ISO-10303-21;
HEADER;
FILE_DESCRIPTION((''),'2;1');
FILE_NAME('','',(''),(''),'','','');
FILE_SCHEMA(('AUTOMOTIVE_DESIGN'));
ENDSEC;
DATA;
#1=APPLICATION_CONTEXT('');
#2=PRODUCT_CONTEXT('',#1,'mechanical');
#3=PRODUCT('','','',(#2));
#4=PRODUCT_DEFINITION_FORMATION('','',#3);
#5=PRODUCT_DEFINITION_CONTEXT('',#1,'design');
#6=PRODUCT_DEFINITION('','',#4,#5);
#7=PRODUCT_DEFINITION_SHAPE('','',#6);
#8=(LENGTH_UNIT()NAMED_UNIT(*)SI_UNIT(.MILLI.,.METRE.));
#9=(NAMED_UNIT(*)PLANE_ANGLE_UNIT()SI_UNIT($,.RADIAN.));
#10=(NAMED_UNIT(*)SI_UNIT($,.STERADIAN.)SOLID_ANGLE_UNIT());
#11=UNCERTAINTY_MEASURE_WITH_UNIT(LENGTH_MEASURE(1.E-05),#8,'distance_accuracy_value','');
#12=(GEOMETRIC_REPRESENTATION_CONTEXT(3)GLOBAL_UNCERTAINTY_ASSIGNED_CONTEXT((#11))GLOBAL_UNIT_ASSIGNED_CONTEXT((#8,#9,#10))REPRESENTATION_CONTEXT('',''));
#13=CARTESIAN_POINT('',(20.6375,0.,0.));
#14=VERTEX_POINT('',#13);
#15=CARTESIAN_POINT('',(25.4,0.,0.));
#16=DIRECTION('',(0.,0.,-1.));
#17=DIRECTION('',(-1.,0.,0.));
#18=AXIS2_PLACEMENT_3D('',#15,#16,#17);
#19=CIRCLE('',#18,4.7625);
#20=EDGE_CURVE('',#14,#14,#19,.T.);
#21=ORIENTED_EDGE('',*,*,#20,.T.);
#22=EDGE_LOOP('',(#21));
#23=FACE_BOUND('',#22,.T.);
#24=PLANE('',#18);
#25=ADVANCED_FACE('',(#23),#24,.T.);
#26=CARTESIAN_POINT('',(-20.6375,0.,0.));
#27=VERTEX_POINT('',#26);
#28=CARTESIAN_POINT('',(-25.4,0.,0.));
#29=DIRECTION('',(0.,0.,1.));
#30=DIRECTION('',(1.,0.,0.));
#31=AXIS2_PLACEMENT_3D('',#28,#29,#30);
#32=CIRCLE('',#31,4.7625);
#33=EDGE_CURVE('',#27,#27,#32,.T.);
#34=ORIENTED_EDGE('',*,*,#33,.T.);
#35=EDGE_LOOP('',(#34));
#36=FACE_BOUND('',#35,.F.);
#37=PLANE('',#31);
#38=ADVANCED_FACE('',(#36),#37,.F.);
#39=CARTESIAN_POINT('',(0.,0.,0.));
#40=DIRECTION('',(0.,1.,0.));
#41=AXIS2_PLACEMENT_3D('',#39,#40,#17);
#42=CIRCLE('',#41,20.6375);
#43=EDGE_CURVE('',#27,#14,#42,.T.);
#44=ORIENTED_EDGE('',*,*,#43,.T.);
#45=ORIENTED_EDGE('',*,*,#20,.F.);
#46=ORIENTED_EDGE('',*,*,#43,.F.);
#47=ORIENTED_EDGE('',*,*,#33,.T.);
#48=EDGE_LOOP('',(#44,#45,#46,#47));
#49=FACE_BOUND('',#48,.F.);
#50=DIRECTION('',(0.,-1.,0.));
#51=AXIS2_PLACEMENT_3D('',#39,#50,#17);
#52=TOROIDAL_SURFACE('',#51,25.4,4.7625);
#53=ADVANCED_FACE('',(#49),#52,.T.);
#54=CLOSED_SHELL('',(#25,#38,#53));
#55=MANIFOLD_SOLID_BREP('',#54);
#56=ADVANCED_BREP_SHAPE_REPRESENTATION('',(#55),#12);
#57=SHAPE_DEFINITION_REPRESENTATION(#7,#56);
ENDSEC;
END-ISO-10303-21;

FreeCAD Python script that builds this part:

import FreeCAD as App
import Part
import Sketcher
Q = App.Units.Quantity

doc = App.newDocument("Part")
body = doc.addObject("PartDesign::Body", "Body")

sketch1 = doc.addObject("Sketcher::SketchObject", "Sketch")
body.addObject(sketch1)
sketch1.AttachmentSupport = (doc.XY_Plane, [""])
sketch1.MapMode = "FlatFace"
sketch1.addGeometry(Part.Circle(App.Vector(-25.4, 0, 0), App.Vector(0, 0, 1), 4.8), False)
sketch1.addConstraint([
    Sketcher.Constraint("PointOnObject", 0, 3, -1),
    Sketcher.Constraint("Diameter", 0, Q("0.375 in")),
    Sketcher.Constraint("DistanceX", 0, 3, -1, 1, Q("1 in")),
])
revolution = doc.addObject("PartDesign::Revolution", "Revolution")
body.addObject(revolution)
revolution.Profile = sketch1
revolution.ReferenceAxis = (sketch1, ["V_Axis"])
revolution.Angle = 180

doc.recompute()
